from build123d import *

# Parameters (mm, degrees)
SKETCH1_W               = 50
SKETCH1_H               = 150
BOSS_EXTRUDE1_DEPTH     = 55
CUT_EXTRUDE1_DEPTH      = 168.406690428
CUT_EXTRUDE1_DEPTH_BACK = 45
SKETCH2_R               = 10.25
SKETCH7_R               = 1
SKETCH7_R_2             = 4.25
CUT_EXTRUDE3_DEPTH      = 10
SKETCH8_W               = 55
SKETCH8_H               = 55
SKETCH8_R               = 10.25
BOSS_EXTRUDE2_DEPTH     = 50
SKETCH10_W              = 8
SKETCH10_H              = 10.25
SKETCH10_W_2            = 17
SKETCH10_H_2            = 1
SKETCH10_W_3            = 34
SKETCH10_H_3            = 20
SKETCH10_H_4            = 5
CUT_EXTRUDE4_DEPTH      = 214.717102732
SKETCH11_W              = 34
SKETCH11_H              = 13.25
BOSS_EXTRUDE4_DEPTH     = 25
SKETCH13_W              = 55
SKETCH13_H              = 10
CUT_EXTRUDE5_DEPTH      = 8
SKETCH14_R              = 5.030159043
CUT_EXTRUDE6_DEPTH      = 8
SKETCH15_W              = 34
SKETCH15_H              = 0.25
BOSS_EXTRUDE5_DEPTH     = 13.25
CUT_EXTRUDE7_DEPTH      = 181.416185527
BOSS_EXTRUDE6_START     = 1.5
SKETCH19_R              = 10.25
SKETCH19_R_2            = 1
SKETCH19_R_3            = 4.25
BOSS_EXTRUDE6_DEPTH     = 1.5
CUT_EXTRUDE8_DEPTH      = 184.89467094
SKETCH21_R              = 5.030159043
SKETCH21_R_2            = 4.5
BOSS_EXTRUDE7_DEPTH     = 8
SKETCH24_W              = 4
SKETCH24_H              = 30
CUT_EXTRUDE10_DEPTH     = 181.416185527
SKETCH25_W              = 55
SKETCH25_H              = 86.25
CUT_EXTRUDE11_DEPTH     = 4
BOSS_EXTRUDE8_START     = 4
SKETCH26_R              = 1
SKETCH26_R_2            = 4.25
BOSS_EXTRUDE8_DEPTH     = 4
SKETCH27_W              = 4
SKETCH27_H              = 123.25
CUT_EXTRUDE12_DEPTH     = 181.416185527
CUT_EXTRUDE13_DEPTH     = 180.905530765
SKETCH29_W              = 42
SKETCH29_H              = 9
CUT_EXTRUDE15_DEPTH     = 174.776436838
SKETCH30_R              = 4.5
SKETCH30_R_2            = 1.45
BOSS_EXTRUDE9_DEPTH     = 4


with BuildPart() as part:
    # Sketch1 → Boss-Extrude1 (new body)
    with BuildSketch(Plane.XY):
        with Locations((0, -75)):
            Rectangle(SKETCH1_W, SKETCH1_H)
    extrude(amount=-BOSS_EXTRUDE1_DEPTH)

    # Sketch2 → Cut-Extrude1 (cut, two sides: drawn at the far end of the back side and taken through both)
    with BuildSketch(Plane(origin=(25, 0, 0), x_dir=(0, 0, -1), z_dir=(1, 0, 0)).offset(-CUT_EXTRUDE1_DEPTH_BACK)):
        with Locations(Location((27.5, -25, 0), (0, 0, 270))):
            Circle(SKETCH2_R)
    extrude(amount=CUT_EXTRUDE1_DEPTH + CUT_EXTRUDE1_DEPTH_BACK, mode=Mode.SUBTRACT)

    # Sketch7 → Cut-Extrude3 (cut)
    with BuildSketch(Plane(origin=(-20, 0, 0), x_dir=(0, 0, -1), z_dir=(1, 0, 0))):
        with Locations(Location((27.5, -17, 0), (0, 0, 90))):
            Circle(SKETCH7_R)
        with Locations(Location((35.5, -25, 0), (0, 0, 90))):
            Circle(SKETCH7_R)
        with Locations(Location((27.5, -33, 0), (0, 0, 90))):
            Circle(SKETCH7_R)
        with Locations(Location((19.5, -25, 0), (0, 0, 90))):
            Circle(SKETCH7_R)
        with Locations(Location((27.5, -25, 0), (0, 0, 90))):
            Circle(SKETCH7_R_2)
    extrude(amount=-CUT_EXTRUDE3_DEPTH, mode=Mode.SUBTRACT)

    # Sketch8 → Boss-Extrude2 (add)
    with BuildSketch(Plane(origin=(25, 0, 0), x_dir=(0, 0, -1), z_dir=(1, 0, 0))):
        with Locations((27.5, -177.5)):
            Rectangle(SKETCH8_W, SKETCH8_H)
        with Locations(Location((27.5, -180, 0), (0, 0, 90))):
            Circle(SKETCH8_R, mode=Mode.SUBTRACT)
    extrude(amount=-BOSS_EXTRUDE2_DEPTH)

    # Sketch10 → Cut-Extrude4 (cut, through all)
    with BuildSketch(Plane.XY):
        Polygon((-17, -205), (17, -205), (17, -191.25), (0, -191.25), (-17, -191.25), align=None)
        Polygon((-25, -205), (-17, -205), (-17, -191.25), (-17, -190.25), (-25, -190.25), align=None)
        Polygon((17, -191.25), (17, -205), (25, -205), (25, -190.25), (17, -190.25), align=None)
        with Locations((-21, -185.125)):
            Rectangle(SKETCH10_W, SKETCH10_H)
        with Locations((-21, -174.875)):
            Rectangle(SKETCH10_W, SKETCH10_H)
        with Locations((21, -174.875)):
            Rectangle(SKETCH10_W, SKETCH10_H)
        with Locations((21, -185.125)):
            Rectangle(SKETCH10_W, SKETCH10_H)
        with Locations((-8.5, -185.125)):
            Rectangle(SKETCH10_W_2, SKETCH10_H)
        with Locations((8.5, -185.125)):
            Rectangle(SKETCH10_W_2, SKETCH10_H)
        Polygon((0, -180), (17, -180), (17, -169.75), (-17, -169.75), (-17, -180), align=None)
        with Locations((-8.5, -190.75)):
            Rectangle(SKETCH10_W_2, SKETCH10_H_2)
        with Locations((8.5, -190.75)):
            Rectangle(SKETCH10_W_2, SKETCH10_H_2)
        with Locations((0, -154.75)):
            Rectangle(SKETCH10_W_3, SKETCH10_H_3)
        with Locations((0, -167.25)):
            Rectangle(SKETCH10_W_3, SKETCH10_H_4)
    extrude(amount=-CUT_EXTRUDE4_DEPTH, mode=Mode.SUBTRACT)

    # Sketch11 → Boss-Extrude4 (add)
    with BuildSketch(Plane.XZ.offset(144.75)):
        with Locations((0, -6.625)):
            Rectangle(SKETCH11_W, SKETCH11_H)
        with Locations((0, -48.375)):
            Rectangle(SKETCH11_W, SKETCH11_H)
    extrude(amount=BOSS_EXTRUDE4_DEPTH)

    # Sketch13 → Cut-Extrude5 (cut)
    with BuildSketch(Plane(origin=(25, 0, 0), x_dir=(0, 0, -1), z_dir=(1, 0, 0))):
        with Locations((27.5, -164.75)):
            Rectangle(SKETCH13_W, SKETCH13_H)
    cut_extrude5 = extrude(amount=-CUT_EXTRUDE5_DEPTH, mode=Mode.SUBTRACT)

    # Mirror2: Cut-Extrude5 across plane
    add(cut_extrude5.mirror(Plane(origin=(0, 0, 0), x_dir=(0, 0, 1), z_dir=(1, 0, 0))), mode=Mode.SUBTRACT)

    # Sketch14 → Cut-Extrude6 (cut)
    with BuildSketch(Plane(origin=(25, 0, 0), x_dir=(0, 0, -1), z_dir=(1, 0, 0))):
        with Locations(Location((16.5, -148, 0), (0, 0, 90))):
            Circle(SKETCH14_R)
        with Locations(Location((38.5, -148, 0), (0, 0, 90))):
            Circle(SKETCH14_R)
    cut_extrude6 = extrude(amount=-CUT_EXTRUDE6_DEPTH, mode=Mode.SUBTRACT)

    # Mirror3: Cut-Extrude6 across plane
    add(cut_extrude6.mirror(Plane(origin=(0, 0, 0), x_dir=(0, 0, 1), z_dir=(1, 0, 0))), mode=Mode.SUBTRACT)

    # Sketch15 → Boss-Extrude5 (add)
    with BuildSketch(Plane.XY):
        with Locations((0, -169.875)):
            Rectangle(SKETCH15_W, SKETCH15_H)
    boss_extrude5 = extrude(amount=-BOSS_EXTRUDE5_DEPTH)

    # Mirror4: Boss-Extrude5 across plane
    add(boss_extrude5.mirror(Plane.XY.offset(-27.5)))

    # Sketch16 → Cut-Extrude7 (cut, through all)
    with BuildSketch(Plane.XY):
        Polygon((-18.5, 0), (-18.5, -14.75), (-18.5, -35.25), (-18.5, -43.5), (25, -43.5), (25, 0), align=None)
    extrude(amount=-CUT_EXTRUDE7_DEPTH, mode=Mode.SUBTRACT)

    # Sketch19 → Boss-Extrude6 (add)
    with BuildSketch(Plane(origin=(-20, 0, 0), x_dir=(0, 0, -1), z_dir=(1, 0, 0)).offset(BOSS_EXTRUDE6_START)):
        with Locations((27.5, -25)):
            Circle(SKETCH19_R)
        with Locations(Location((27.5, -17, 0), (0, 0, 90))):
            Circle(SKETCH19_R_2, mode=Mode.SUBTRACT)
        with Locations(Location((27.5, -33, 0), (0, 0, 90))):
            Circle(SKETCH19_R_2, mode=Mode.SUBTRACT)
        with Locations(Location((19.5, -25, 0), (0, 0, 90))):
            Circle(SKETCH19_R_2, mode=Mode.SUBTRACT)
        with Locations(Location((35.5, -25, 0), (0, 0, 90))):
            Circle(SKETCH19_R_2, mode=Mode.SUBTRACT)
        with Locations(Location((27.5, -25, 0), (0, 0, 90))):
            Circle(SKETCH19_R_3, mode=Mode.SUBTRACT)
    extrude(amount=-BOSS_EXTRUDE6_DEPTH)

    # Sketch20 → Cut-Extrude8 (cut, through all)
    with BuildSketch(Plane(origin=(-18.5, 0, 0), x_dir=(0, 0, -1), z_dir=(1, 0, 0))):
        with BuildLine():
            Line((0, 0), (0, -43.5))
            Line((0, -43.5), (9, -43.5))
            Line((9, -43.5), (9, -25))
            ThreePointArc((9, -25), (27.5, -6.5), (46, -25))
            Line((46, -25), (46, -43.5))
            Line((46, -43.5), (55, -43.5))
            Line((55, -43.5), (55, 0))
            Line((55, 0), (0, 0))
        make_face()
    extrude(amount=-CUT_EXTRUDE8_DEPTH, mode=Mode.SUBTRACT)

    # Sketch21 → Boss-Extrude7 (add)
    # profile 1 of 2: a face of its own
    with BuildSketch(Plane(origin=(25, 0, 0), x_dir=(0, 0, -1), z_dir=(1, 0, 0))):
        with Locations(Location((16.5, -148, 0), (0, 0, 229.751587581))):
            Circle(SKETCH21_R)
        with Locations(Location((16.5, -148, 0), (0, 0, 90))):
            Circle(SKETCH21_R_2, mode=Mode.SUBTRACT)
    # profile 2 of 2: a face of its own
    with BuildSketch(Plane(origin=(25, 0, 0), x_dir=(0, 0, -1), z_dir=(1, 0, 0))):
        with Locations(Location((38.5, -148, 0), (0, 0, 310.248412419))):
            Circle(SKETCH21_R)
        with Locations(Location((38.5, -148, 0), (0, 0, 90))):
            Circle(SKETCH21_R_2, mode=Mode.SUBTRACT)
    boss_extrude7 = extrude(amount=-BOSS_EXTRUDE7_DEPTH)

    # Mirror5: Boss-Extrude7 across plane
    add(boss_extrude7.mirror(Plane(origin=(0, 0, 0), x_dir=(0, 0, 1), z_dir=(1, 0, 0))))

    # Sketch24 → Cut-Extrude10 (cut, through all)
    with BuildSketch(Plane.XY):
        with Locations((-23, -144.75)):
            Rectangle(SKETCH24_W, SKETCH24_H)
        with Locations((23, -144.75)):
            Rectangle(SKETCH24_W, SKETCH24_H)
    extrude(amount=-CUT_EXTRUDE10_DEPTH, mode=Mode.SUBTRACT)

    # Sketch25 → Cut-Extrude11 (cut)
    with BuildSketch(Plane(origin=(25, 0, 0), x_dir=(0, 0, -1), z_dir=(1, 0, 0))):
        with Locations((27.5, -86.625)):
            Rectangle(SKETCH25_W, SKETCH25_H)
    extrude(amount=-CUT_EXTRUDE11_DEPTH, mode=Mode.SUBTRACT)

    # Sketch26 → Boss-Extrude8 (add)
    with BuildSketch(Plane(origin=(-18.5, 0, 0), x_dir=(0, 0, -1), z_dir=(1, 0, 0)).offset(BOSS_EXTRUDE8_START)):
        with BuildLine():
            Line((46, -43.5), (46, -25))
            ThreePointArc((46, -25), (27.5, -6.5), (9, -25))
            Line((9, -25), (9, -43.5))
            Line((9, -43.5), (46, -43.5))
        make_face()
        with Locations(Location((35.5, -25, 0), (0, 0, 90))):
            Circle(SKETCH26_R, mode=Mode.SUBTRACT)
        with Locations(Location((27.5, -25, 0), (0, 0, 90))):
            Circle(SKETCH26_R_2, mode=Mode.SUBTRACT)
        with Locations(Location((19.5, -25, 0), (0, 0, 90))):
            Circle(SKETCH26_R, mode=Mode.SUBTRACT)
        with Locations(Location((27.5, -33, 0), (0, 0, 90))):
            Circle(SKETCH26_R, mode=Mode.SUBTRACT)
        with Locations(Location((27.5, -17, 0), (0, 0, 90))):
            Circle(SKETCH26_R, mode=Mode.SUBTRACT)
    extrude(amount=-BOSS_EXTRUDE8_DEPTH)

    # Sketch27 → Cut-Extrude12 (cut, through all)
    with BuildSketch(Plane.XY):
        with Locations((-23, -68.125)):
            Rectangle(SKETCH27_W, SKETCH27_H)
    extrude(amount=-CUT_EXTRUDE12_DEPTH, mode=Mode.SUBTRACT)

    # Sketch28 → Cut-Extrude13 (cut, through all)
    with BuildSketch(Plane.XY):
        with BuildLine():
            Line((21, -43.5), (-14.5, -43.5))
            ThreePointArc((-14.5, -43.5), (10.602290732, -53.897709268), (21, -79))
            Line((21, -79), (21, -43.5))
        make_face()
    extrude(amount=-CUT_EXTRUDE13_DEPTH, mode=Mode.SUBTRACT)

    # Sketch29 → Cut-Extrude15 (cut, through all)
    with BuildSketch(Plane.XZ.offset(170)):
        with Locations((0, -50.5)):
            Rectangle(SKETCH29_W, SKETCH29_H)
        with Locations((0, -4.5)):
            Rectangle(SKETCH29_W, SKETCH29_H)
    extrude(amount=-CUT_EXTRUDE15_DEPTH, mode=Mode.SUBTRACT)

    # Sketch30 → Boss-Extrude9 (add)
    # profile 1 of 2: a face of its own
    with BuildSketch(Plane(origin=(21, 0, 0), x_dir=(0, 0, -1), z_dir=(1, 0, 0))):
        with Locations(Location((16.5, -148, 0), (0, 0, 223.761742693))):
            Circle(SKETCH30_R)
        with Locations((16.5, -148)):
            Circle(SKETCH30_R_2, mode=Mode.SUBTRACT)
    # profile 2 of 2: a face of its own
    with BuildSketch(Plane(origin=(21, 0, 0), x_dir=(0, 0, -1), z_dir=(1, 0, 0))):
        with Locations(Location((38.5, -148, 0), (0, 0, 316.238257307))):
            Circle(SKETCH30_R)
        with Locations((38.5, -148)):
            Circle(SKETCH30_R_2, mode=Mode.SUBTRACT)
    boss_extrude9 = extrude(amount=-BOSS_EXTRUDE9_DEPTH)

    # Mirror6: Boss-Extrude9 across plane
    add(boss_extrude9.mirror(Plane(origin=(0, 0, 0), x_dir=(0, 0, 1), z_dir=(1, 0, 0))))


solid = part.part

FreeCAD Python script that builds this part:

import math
import FreeCAD as App
import Part
import Sketcher
from FreeCAD import Vector
Q = App.Units.Quantity

doc = App.newDocument("Part")
body = doc.addObject("PartDesign::Body", "Body")

# Sketch on XY plane
sketch1 = body.newObject("Sketcher::SketchObject", "Sketch")
sketch1.AttachmentSupport = (doc.getObject("XY_Plane"), [""])
sketch1.MapMode = "FlatFace"
sketch1.addGeometry([
    Part.LineSegment(Vector(-25, 0, 0), Vector(-25, -150, 0)),
    Part.LineSegment(Vector(-25, -150, 0), Vector(25, -150, 0)),
    Part.LineSegment(Vector(25, -150, 0), Vector(25, 0, 0)),
    Part.LineSegment(Vector(25, 0, 0), Vector(-25, 0, 0)),
], False)
sketch1.addConstraint([
    Sketcher.Constraint("Coincident", 0, 2, 1, 1),
    Sketcher.Constraint("Coincident", 1, 2, 2, 1),
    Sketcher.Constraint("Coincident", 2, 2, 3, 1),
    Sketcher.Constraint("Coincident", 3, 2, 0, 1),
    Sketcher.Constraint("Vertical", 0),
    Sketcher.Constraint("Horizontal", 1),
    Sketcher.Constraint("Vertical", 2),
    Sketcher.Constraint("Horizontal", 3),
    Sketcher.Constraint("Symmetric", 2, 2, 3, 2, -1, 1),
    Sketcher.Constraint("DistanceX", 1, 1, 1, 2, Q("50 mm")),
    Sketcher.Constraint("DistanceY", 0, 2, 0, 1, Q("150 mm")),
])
pad1 = body.newObject("PartDesign::Pad", "Pad")
pad1.Profile = sketch1
pad1.Length = 55
pad1.Reversed = True

# Sketch on YZ plane
sketch2 = body.newObject("Sketcher::SketchObject", "Sketch001")
sketch2.AttachmentSupport = (doc.getObject("YZ_Plane"), [""])
sketch2.MapMode = "FlatFace"
sketch2.AttachmentOffset = App.Placement(Vector(0, 0, 25), App.Rotation())
sketch2.addGeometry(Part.Circle(Vector(-25, -28, 0), Vector(0, 0, 1), 10), False)
sketch2.addConstraint([
    Sketcher.Constraint("Diameter", 0, Q("20.5 mm")),
    Sketcher.Constraint("DistanceX", 0, 3, -1, 1, Q("25 mm")),
    Sketcher.Constraint("DistanceY", 0, 3, -1, 1, Q("27.5 mm")),
])
pocket1 = body.newObject("PartDesign::Pocket", "Pocket")
pocket1.Profile = sketch2
pocket1.Type = "TwoLengths"
pocket1.Length = 168.40669
pocket1.Length2 = 45
pocket1.Reversed = True

# Sketch on YZ plane
sketch3 = body.newObject("Sketcher::SketchObject", "Sketch002")
sketch3.AttachmentSupport = (doc.getObject("YZ_Plane"), [""])
sketch3.MapMode = "FlatFace"
sketch3.AttachmentOffset = App.Placement(Vector(0, 0, -20), App.Rotation())
sketch3.addGeometry([
    Part.Circle(Vector(-17, -27.5, 0), Vector(0, 0, 1), 1),  # 0
    Part.Circle(Vector(-25, -35.5, 0), Vector(0, 0, 1), 1),  # 1
    Part.Circle(Vector(-33, -27.5, 0), Vector(0, 0, 1), 1),  # 2
    Part.Circle(Vector(-25, -19.5, 0), Vector(0, 0, 1), 1),  # 3
    Part.Circle(Vector(-25, -27.5, 0), Vector(0, 0, 1), 4.2),  # 4
], False)
sketch3.addConstraint([
    Sketcher.Constraint("Equal", 0, 1),
    Sketcher.Constraint("Equal", 1, 2),
    Sketcher.Constraint("Equal", 2, 3),
    Sketcher.Constraint("Horizontal", 0, 3, 2, 3),
    Sketcher.Constraint("Horizontal", 2, 3, 4, 3),
    Sketcher.Constraint("Vertical", 1, 3, 3, 3),
    Sketcher.Constraint("Vertical", 3, 3, 4, 3),
    Sketcher.Constraint("Diameter", 0, Q("2 mm")),
    Sketcher.Constraint("Diameter", 4, Q("8.5 mm")),
    Sketcher.Constraint("DistanceX", 0, 3, -1, 1, Q("17 mm")),
    Sketcher.Constraint("DistanceX", 1, 3, -1, 1, Q("25 mm")),
    Sketcher.Constraint("DistanceX", 2, 3, -1, 1, Q("33 mm")),
    Sketcher.Constraint("DistanceY", 1, 3, 0, 3, Q("8 mm")),
    Sketcher.Constraint("DistanceY", 0, 3, 3, 3, Q("8 mm")),
    Sketcher.Constraint("DistanceY", 0, 3, -1, 1, Q("27.5 mm")),
])
pocket2 = body.newObject("PartDesign::Pocket", "Pocket001")
pocket2.Profile = sketch3
pocket2.Length = 10

# Sketch on YZ plane
sketch4 = body.newObject("Sketcher::SketchObject", "Sketch003")
sketch4.AttachmentSupport = (doc.getObject("YZ_Plane"), [""])
sketch4.MapMode = "FlatFace"
sketch4.AttachmentOffset = App.Placement(Vector(0, 0, 25), App.Rotation())
sketch4.addGeometry([
    Part.LineSegment(Vector(-150, 0, 0), Vector(-205, 0, 0)),  # 0
    Part.LineSegment(Vector(-205, 0, 0), Vector(-205, -55, 0)),  # 1
    Part.LineSegment(Vector(-205, -55, 0), Vector(-150, -55, 0)),  # 2
    Part.LineSegment(Vector(-150, -55, 0), Vector(-150, 0, 0)),  # 3
    Part.Circle(Vector(-180, -28, 0), Vector(0, 0, 1), 10),  # 4
], False)
sketch4.addConstraint([
    Sketcher.Constraint("Coincident", 0, 2, 1, 1),
    Sketcher.Constraint("Coincident", 1, 2, 2, 1),
    Sketcher.Constraint("Coincident", 2, 2, 3, 1),
    Sketcher.Constraint("Coincident", 3, 2, 0, 1),
    Sketcher.Constraint("Horizontal", 0),
    Sketcher.Constraint("Vertical", 1),
    Sketcher.Constraint("Horizontal", 2),
    Sketcher.Constraint("Vertical", 3),
    Sketcher.Constraint("PointOnObject", 0, 2, -1),
    Sketcher.Constraint("Equal", 2, 1),
    Sketcher.Constraint("Diameter", 4, Q("20.5 mm")),
    Sketcher.Constraint("DistanceX", 0, 2, 0, 1, Q("55 mm")),
    Sketcher.Constraint("DistanceX", 4, 3, -1, 1, Q("180 mm")),
    Sketcher.Constraint("DistanceX", 0, 2, -1, 1, Q("205 mm")),
    Sketcher.Constraint("DistanceY", 4, 3, -1, 1, Q("27.5 mm")),
])
pad2 = body.newObject("PartDesign::Pad", "Pad001")
pad2.Profile = sketch4
pad2.Length = 50
pad2.Reversed = True

# Sketch on XY plane
sketch5 = body.newObject("Sketcher::SketchObject", "Sketch004")
sketch5.AttachmentSupport = (doc.getObject("XY_Plane"), [""])
sketch5.MapMode = "FlatFace"
sketch5.addGeometry([
    Part.LineSegment(Vector(-25, -170, 0), Vector(-25, -205, 0)),  # 0
    Part.LineSegment(Vector(-25, -205, 0), Vector(25, -205, 0)),  # 1
    Part.LineSegment(Vector(25, -205, 0), Vector(25, -170, 0)),  # 2
    Part.LineSegment(Vector(25, -170, 0), Vector(17, -170, 0)),  # 3
    Part.LineSegment(Vector(17, -170, 0), Vector(17, -145, 0)),  # 4
    Part.LineSegment(Vector(17, -145, 0), Vector(-17, -145, 0)),  # 5
    Part.LineSegment(Vector(-17, -145, 0), Vector(-17, -170, 0)),  # 6
    Part.LineSegment(Vector(-17, -170, 0), Vector(-25, -170, 0)),  # 7
], False)
sketch5.addConstraint([
    Sketcher.Constraint("Coincident", 0, 2, 1, 1),
    Sketcher.Constraint("Coincident", 1, 2, 2, 1),
    Sketcher.Constraint("Coincident", 2, 2, 3, 1),
    Sketcher.Constraint("Coincident", 3, 2, 4, 1),
    Sketcher.Constraint("Coincident", 4, 2, 5, 1),
    Sketcher.Constraint("Coincident", 5, 2, 6, 1),
    Sketcher.Constraint("Coincident", 6, 2, 7, 1),
    Sketcher.Constraint("Coincident", 7, 2, 0, 1),
    Sketcher.Constraint("Vertical", 0),
    Sketcher.Constraint("Horizontal", 1),
    Sketcher.Constraint("Vertical", 2),
    Sketcher.Constraint("Horizontal", 3),
    Sketcher.Constraint("Vertical", 4),
    Sketcher.Constraint("Horizontal", 5),
    Sketcher.Constraint("Vertical", 6),
    Sketcher.Constraint("Horizontal", 7),
    Sketcher.Constraint("Symmetric", 3, 2, 6, 2, -2),
    Sketcher.Constraint("Equal", 3, 7),
    Sketcher.Constraint("DistanceX", 1, 1, 1, 2, Q("50 mm")),
    Sketcher.Constraint("DistanceX", 3, 2, 3, 1, Q("8 mm")),
    Sketcher.Constraint("DistanceY", 4, 1, 4, 2, Q("25 mm")),
    Sketcher.Constraint("DistanceY", 0, 2, -1, 1, Q("205 mm")),
    Sketcher.Constraint("DistanceY", 0, 2, 0, 1, Q("35.25 mm")),
])
pocket3 = body.newObject("PartDesign::Pocket", "Pocket002")
pocket3.Profile = sketch5
pocket3.Type = "ThroughAll"

# Sketch on XZ plane
sketch6 = body.newObject("Sketcher::SketchObject", "Sketch005")
sketch6.AttachmentSupport = (doc.getObject("XZ_Plane"), [""])
sketch6.MapMode = "FlatFace"
sketch6.AttachmentOffset = App.Placement(Vector(0, 0, 144.75), App.Rotation())
sketch6.addGeometry([
    Part.LineSegment(Vector(-17, 0, 0), Vector(-17, -13, 0)),  # 0
    Part.LineSegment(Vector(-17, -13, 0), Vector(17, -13, 0)),  # 1
    Part.LineSegment(Vector(17, -13, 0), Vector(17, 0, 0)),  # 2
    Part.LineSegment(Vector(17, 0, 0), Vector(-17, 0, 0)),  # 3
    Part.LineSegment(Vector(-17, -42, 0), Vector(-17, -55, 0)),  # 4
    Part.LineSegment(Vector(-17, -55, 0), Vector(17, -55, 0)),  # 5
    Part.LineSegment(Vector(17, -55, 0), Vector(17, -42, 0)),  # 6
    Part.LineSegment(Vector(17, -42, 0), Vector(-17, -42, 0)),  # 7
], False)
sketch6.addConstraint([
    Sketcher.Constraint("Coincident", 0, 2, 1, 1),
    Sketcher.Constraint("Coincident", 1, 2, 2, 1),
    Sketcher.Constraint("Coincident", 2, 2, 3, 1),
    Sketcher.Constraint("Coincident", 3, 2, 0, 1),
    Sketcher.Constraint("Coincident", 4, 2, 5, 1),
    Sketcher.Constraint("Coincident", 5, 2, 6, 1),
    Sketcher.Constraint("Coincident", 6, 2, 7, 1),
    Sketcher.Constraint("Coincident", 7, 2, 4, 1),
    Sketcher.Constraint("Vertical", 0),
    Sketcher.Constraint("Horizontal", 1),
    Sketcher.Constraint("Vertical", 2),
    Sketcher.Constraint("Horizontal", 3),
    Sketcher.Constraint("Vertical", 4),
    Sketcher.Constraint("Horizontal", 5),
    Sketcher.Constraint("Vertical", 6),
    Sketcher.Constraint("Horizontal", 7),
    Sketcher.Constraint("Symmetric", 2, 2, 3, 2, -1, 1),
    Sketcher.Constraint("Vertical", 3, 2, 4, 2),
    Sketcher.Constraint("Vertical", 2, 2, 5, 2),
    Sketcher.Constraint("Equal", 2, 4),
    Sketcher.Constraint("DistanceX", 1, 1, 1, 2, Q("34 mm")),
    Sketcher.Constraint("DistanceY", 4, 2, -1, 1, Q("55 mm")),
    Sketcher.Constraint("DistanceY", 0, 2, 0, 1, Q("13.25 mm")),
])
pad3 = body.newObject("PartDesign::Pad", "Pad002")
pad3.Profile = sketch6
pad3.Length = 25

# Sketch on YZ plane
sketch7 = body.newObject("Sketcher::SketchObject", "Sketch006")
sketch7.AttachmentSupport = (doc.getObject("YZ_Plane"), [""])
sketch7.MapMode = "FlatFace"
sketch7.AttachmentOffset = App.Placement(Vector(0, 0, 25), App.Rotation())
sketch7.addGeometry([
    Part.LineSegment(Vector(-160, 0, 0), Vector(-170, 0, 0)),
    Part.LineSegment(Vector(-170, 0, 0), Vector(-170, -55, 0)),
    Part.LineSegment(Vector(-170, -55, 0), Vector(-160, -55, 0)),
    Part.LineSegment(Vector(-160, -55, 0), Vector(-160, 0, 0)),
], False)
sketch7.addConstraint([
    Sketcher.Constraint("Coincident", 0, 2, 1, 1),
    Sketcher.Constraint("Coincident", 1, 2, 2, 1),
    Sketcher.Constraint("Coincident", 2, 2, 3, 1),
    Sketcher.Constraint("Coincident", 3, 2, 0, 1),
    Sketcher.Constraint("Horizontal", 0),
    Sketcher.Constraint("Vertical", 1),
    Sketcher.Constraint("Horizontal", 2),
    Sketcher.Constraint("Vertical", 3),
    Sketcher.Constraint("PointOnObject", 0, 2, -1),
    Sketcher.Constraint("DistanceX", 0, 2, 0, 1, Q("10 mm")),
    Sketcher.Constraint("DistanceY", 1, 2, 1, 1, Q("55 mm")),
    Sketcher.Constraint("DistanceX", 0, 2, -1, 1, Q("169.75 mm")),
])
pocket4 = body.newObject("PartDesign::Pocket", "Pocket003")
pocket4.Profile = sketch7
pocket4.Length = 8
doc.recompute()

mirrored = body.newObject("PartDesign::Mirrored", "Mirrored")
mirrored.Originals = [pocket4]
mirrored.MirrorPlane = (doc.getObject("YZ_Plane"), [""])
body.Tip = mirrored

# Sketch on YZ plane
sketch8 = body.newObject("Sketcher::SketchObject", "Sketch007")
sketch8.AttachmentSupport = (doc.getObject("YZ_Plane"), [""])
sketch8.MapMode = "FlatFace"
sketch8.AttachmentOffset = App.Placement(Vector(0, 0, 25), App.Rotation())
sketch8.addGeometry([
    Part.Circle(Vector(-148, -16, 0), Vector(0, 0, 1), 5),
    Part.Circle(Vector(-148, -38, 0), Vector(0, 0, 1), 5),
], False)
sketch8.addConstraint([
    Sketcher.Constraint("Equal", 0, 1),
    Sketcher.Constraint("Vertical", 0, 3, 1, 3),
    Sketcher.Constraint("DistanceX", 0, 3, -1, 1, Q("148 mm")),
    Sketcher.Constraint("DistanceY", 1, 3, 0, 3, Q("22 mm")),
    Sketcher.Constraint("DistanceY", 0, 3, -1, 1, Q("16.5 mm")),
    Sketcher.Constraint("Diameter", 0, Q("10.060318 mm")),
])
pocket5 = body.newObject("PartDesign::Pocket", "Pocket004")
pocket5.Profile = sketch8
pocket5.Length = 8
doc.recompute()

mirrored2 = body.newObject("PartDesign::Mirrored", "Mirrored001")
mirrored2.Originals = [pocket5]
mirrored2.MirrorPlane = (doc.getObject("YZ_Plane"), [""])
body.Tip = mirrored2

# Sketch on XY plane
sketch9 = body.newObject("Sketcher::SketchObject", "Sketch008")
sketch9.AttachmentSupport = (doc.getObject("XY_Plane"), [""])
sketch9.MapMode = "FlatFace"
sketch9.addGeometry([
    Part.LineSegment(Vector(-17, -169.75, 0), Vector(-17, -170, 0)),
    Part.LineSegment(Vector(-17, -170, 0), Vector(17, -170, 0)),
    Part.LineSegment(Vector(17, -170, 0), Vector(17, -169.75, 0)),
    Part.LineSegment(Vector(17, -169.75, 0), Vector(-17, -169.75, 0)),
], False)
sketch9.addConstraint([
    Sketcher.Constraint("Coincident", 0, 2, 1, 1),
    Sketcher.Constraint("Coincident", 1, 2, 2, 1),
    Sketcher.Constraint("Coincident", 2, 2, 3, 1),
    Sketcher.Constraint("Coincident", 3, 2, 0, 1),
    Sketcher.Constraint("Vertical", 0),
    Sketcher.Constraint("Horizontal", 1),
    Sketcher.Constraint("Vertical", 2),
    Sketcher.Constraint("Horizontal", 3),
    Sketcher.Constraint("DistanceX", 1, 1, 1, 2, Q("34 mm")),
    Sketcher.Constraint("DistanceX", 0, 2, -1, 1, Q("17 mm")),
    Sketcher.Constraint("DistanceY", 0, 2, -1, 1, Q("170 mm")),
    Sketcher.Constraint("DistanceY", 0, 2, 0, 1, Q("0.25 mm")),
])
pad4 = body.newObject("PartDesign::Pad", "Pad003")
pad4.Profile = sketch9
pad4.Length = 13.25
pad4.Reversed = True
doc.recompute()

datumplane = body.newObject("PartDesign::Plane", "DatumPlane")
datumplane.AttachmentSupport = (doc.getObject("XY_Plane"), [""])
datumplane.MapMode = "FlatFace"
datumplane.AttachmentOffset = App.Placement(Vector(0, 0, -27.5), App.Rotation())
mirrored3 = body.newObject("PartDesign::Mirrored", "Mirrored002")
mirrored3.Originals = [pad4]
mirrored3.MirrorPlane = (datumplane, [""])
body.Tip = mirrored3

# Sketch on XY plane
sketch10 = body.newObject("Sketcher::SketchObject", "Sketch009")
sketch10.AttachmentSupport = (doc.getObject("XY_Plane"), [""])
sketch10.MapMode = "FlatFace"
sketch10.addGeometry([
    Part.LineSegment(Vector(-18, 0, 0), Vector(-18, -44, 0)),
    Part.LineSegment(Vector(-18, -44, 0), Vector(25, -44, 0)),
    Part.LineSegment(Vector(25, -44, 0), Vector(25, 0, 0)),
    Part.LineSegment(Vector(25, 0, 0), Vector(-18, 0, 0)),
], False)
sketch10.addConstraint([
    Sketcher.Constraint("Coincident", 0, 2, 1, 1),
    Sketcher.Constraint("Coincident", 1, 2, 2, 1),
    Sketcher.Constraint("Coincident", 2, 2, 3, 1),
    Sketcher.Constraint("Coincident", 3, 2, 0, 1),
    Sketcher.Constraint("Vertical", 0),
    Sketcher.Constraint("Horizontal", 1),
    Sketcher.Constraint("Vertical", 2),
    Sketcher.Constraint("Horizontal", 3),
    Sketcher.Constraint("PointOnObject", 2, 2, -1),
    Sketcher.Constraint("Equal", 3, 0),
    Sketcher.Constraint("DistanceX", 1, 1, 1, 2, Q("43.5 mm")),
    Sketcher.Constraint("DistanceX", -1, 1, 1, 2, Q("25 mm")),
])
pocket6 = body.newObject("PartDesign::Pocket", "Pocket005")
pocket6.Profile = sketch10
pocket6.Type = "ThroughAll"

# Sketch on YZ plane
sketch11 = body.newObject("Sketcher::SketchObject", "Sketch010")
sketch11.AttachmentSupport = (doc.getObject("YZ_Plane"), [""])
sketch11.MapMode = "FlatFace"
sketch11.AttachmentOffset = App.Placement(Vector(0, 0, -18.5), App.Rotation())
sketch11.addGeometry([
    Part.Circle(Vector(-25, -27.5, 0), Vector(0, 0, 1), 10.2),  # 0
    Part.Circle(Vector(-33, -27.5, 0), Vector(0, 0, 1), 1),  # 1
    Part.Circle(Vector(-25, -19.5, 0), Vector(0, 0, 1), 1),  # 2
    Part.Circle(Vector(-25, -27.5, 0), Vector(0, 0, 1), 4.2),  # 3
    Part.Circle(Vector(-25, -35.5, 0), Vector(0, 0, 1), 1),  # 4
    Part.Circle(Vector(-17, -27.5, 0), Vector(0, 0, 1), 1),  # 5
], False)
sketch11.addConstraint([
    Sketcher.Constraint("Coincident", 3, 3, 0, 3),
    Sketcher.Constraint("Equal", 1, 2),
    Sketcher.Constraint("Equal", 2, 4),
    Sketcher.Constraint("Equal", 4, 5),
    Sketcher.Constraint("Horizontal", 0, 3, 1, 3),
    Sketcher.Constraint("Horizontal", 3, 3, 5, 3),
    Sketcher.Constraint("Vertical", 0, 3, 2, 3),
    Sketcher.Constraint("Vertical", 3, 3, 4, 3),
    Sketcher.Constraint("Diameter", 1, Q("2 mm")),
    Sketcher.Constraint("Diameter", 0, Q("20.5 mm")),
    Sketcher.Constraint("Diameter", 3, Q("8.5 mm")),
    Sketcher.Constraint("DistanceX", 0, 3, -1, 1, Q("25 mm")),
    Sketcher.Constraint("DistanceX", 1, 3, -1, 1, Q("33 mm")),
    Sketcher.Constraint("DistanceX", 5, 3, -1, 1, Q("17 mm")),
    Sketcher.Constraint("DistanceY", 0, 3, 2, 3, Q("8 mm")),
    Sketcher.Constraint("DistanceY", 4, 3, 0, 3, Q("8 mm")),
    Sketcher.Constraint("DistanceY", 0, 3, -1, 1, Q("27.5 mm")),
])
pad5 = body.newObject("PartDesign::Pad", "Pad004")
pad5.Profile = sketch11
pad5.Length = 1.5
pad5.Reversed = True

# Sketch on YZ plane
sketch12 = body.newObject("Sketcher::SketchObject", "Sketch011")
sketch12.AttachmentSupport = (doc.getObject("YZ_Plane"), [""])
sketch12.MapMode = "FlatFace"
sketch12.AttachmentOffset = App.Placement(Vector(0, 0, -18.5), App.Rotation())
sketch12.addGeometry([
    Part.LineSegment(Vector(0, 0, 0), Vector(-44, 0, 0)),  # 0
    Part.LineSegment(Vector(-44, 0, 0), Vector(-44, -9, 0)),  # 1
    Part.LineSegment(Vector(-44, -9, 0), Vector(-25, -9, 0)),  # 2
    Part.ArcOfCircle(Part.Circle(Vector(-25, -28, 0), Vector(0, 0, 1), 18), math.radians(-90), math.radians(90)),  # 3
    Part.LineSegment(Vector(-25, -46, 0), Vector(-44, -46, 0)),  # 4
    Part.LineSegment(Vector(-44, -46, 0), Vector(-44, -55, 0)),  # 5
    Part.LineSegment(Vector(-44, -55, 0), Vector(0, -55, 0)),  # 6
    Part.LineSegment(Vector(0, -55, 0), Vector(0, 0, 0)),  # 7
], False)
sketch12.addConstraint([
    Sketcher.Constraint("Coincident", 0, 2, 1, 1),
    Sketcher.Constraint("Coincident", 1, 2, 2, 1),
    Sketcher.Constraint("Tangent", 2, 2, 3, 2),
    Sketcher.Constraint("Tangent", 3, 1, 4, 1),
    Sketcher.Constraint("Coincident", 4, 2, 5, 1),
    Sketcher.Constraint("Coincident", 5, 2, 6, 1),
    Sketcher.Constraint("Coincident", 6, 2, 7, 1),
    Sketcher.Constraint("Coincident", 7, 2, 0, 1),
    Sketcher.Constraint("Horizontal", 0),
    Sketcher.Constraint("Vertical", 1),
    Sketcher.Constraint("Horizontal", 2),
    Sketcher.Constraint("Horizontal", 4),
    Sketcher.Constraint("Vertical", 5),
    Sketcher.Constraint("Horizontal", 6),
    Sketcher.Constraint("Vertical", 7),
    Sketcher.Constraint("Coincident", 7, 2, -1, 1),
    Sketcher.Constraint("Vertical", 1, 2, 4, 2),
    Sketcher.Constraint("Equal", 1, 5),
    Sketcher.Constraint("Radius", 3, Q("18.5 mm")),
    Sketcher.Constraint("DistanceY", 1, 2, 1, 1, Q("9 mm")),
    Sketcher.Constraint("DistanceX", 0, 2, 0, 1, Q("43.5 mm")),
    Sketcher.Constraint("DistanceX", 2, 1, 2, 2, Q("18.5 mm")),
])
pocket7 = body.newObject("PartDesign::Pocket", "Pocket006")
pocket7.Profile = sketch12
pocket7.Type = "ThroughAll"

# Sketch on YZ plane
sketch13 = body.newObject("Sketcher::SketchObject", "Sketch012")
sketch13.AttachmentSupport = (doc.getObject("YZ_Plane"), [""])
sketch13.MapMode = "FlatFace"
sketch13.AttachmentOffset = App.Placement(Vector(0, 0, 25), App.Rotation())
sketch13.addGeometry([
    Part.Circle(Vector(-148, -16.5, 0), Vector(0, 0, 1), 5),
    Part.Circle(Vector(-148, -16.5, 0), Vector(0, 0, 1), 4.5),
    Part.Circle(Vector(-148, -38.5, 0), Vector(0, 0, 1), 5),
    Part.Circle(Vector(-148, -38.5, 0), Vector(0, 0, 1), 4.5),
], False)
sketch13.addConstraint([
    Sketcher.Constraint("Coincident", 1, 3, 0, 3),
    Sketcher.Constraint("Coincident", 3, 3, 2, 3),
    Sketcher.Constraint("Equal", 0, 2),
    Sketcher.Constraint("Equal", 1, 3),
    Sketcher.Constraint("Vertical", 1, 3, 2, 3),
    Sketcher.Constraint("Diameter", 1, Q("9 mm")),
    Sketcher.Constraint("DistanceX", 0, 3, -1, 1, Q("148 mm")),
    Sketcher.Constraint("DistanceY", 2, 3, 0, 3, Q("22 mm")),
    Sketcher.Constraint("DistanceY", 0, 3, -1, 1, Q("16.5 mm")),
    Sketcher.Constraint("Diameter", 0, Q("10.060318 mm")),
])
pad6 = body.newObject("PartDesign::Pad", "Pad005")
pad6.Profile = sketch13
pad6.Length = 8
pad6.Reversed = True
doc.recompute()

mirrored4 = body.newObject("PartDesign::Mirrored", "Mirrored003")
mirrored4.Originals = [pad6]
mirrored4.MirrorPlane = (doc.getObject("YZ_Plane"), [""])
body.Tip = mirrored4

# Sketch on XY plane
sketch14 = body.newObject("Sketcher::SketchObject", "Sketch013")
sketch14.AttachmentSupport = (doc.getObject("XY_Plane"), [""])
sketch14.MapMode = "FlatFace"
sketch14.addGeometry([
    Part.LineSegment(Vector(-25, -129.8, 0), Vector(-25, -159.8, 0)),  # 0
    Part.LineSegment(Vector(-25, -159.8, 0), Vector(-21, -159.8, 0)),  # 1
    Part.LineSegment(Vector(-21, -159.8, 0), Vector(-21, -129.8, 0)),  # 2
    Part.LineSegment(Vector(-21, -129.8, 0), Vector(-25, -129.8, 0)),  # 3
    Part.LineSegment(Vector(21, -129.8, 0), Vector(21, -159.8, 0)),  # 4
    Part.LineSegment(Vector(21, -159.8, 0), Vector(25, -159.8, 0)),  # 5
    Part.LineSegment(Vector(25, -159.8, 0), Vector(25, -129.8, 0)),  # 6
    Part.LineSegment(Vector(25, -129.8, 0), Vector(21, -129.8, 0)),  # 7
], False)
sketch14.addConstraint([
    Sketcher.Constraint("Coincident", 0, 2, 1, 1),
    Sketcher.Constraint("Coincident", 1, 2, 2, 1),
    Sketcher.Constraint("Coincident", 2, 2, 3, 1),
    Sketcher.Constraint("Coincident", 3, 2, 0, 1),
    Sketcher.Constraint("Coincident", 4, 2, 5, 1),
    Sketcher.Constraint("Coincident", 5, 2, 6, 1),
    Sketcher.Constraint("Coincident", 6, 2, 7, 1),
    Sketcher.Constraint("Coincident", 7, 2, 4, 1),
    Sketcher.Constraint("Vertical", 0),
    Sketcher.Constraint("Horizontal", 1),
    Sketcher.Constraint("Vertical", 2),
    Sketcher.Constraint("Horizontal", 3),
    Sketcher.Constraint("Vertical", 4),
    Sketcher.Constraint("Horizontal", 5),
    Sketcher.Constraint("Vertical", 6),
    Sketcher.Constraint("Horizontal", 7),
    Sketcher.Constraint("Symmetric", 1, 2, 4, 2, -2),
    Sketcher.Constraint("Symmetric", 3, 2, 6, 2, -2),
    Sketcher.Constraint("DistanceX", 1, 1, 1, 2, Q("4 mm")),
    Sketcher.Constraint("DistanceY", 0, 2, 0, 1, Q("30 mm")),
    Sketcher.Constraint("DistanceX", 0, 2, -1, 1, Q("25 mm")),
    Sketcher.Constraint("DistanceY", 0, 2, -1, 1, Q("159.75 mm")),
])
pocket8 = body.newObject("PartDesign::Pocket", "Pocket007")
pocket8.Profile = sketch14
pocket8.Type = "ThroughAll"

# Sketch on YZ plane
sketch15 = body.newObject("Sketcher::SketchObject", "Sketch014")
sketch15.AttachmentSupport = (doc.getObject("YZ_Plane"), [""])
sketch15.MapMode = "FlatFace"
sketch15.AttachmentOffset = App.Placement(Vector(0, 0, 25), App.Rotation())
sketch15.addGeometry([
    Part.LineSegment(Vector(-44, 0, 0), Vector(-130, 0, 0)),
    Part.LineSegment(Vector(-130, 0, 0), Vector(-130, -55, 0)),
    Part.LineSegment(Vector(-130, -55, 0), Vector(-44, -55, 0)),
    Part.LineSegment(Vector(-44, -55, 0), Vector(-44, 0, 0)),
], False)
sketch15.addConstraint([
    Sketcher.Constraint("Coincident", 0, 2, 1, 1),
    Sketcher.Constraint("Coincident", 1, 2, 2, 1),
    Sketcher.Constraint("Coincident", 2, 2, 3, 1),
    Sketcher.Constraint("Coincident", 3, 2, 0, 1),
    Sketcher.Constraint("Horizontal", 0),
    Sketcher.Constraint("Vertical", 1),
    Sketcher.Constraint("Horizontal", 2),
    Sketcher.Constraint("Vertical", 3),
    Sketcher.Constraint("PointOnObject", 0, 2, -1),
    Sketcher.Constraint("DistanceY", 1, 2, 1, 1, Q("55 mm")),
    Sketcher.Constraint("DistanceX", 0, 2, 0, 1, Q("86.25 mm")),
    Sketcher.Constraint("DistanceX", 2, 2, -1, 1, Q("43.5 mm")),
])
pocket9 = body.newObject("PartDesign::Pocket", "Pocket008")
pocket9.Profile = sketch15
pocket9.Length = 4

# Sketch on YZ plane
sketch16 = body.newObject("Sketcher::SketchObject", "Sketch015")
sketch16.AttachmentSupport = (doc.getObject("YZ_Plane"), [""])
sketch16.MapMode = "FlatFace"
sketch16.AttachmentOffset = App.Placement(Vector(0, 0, -14.5), App.Rotation())
sketch16.addGeometry([
    Part.LineSegment(Vector(-43.5, -46, 0), Vector(-25, -46, 0)),  # 0
    Part.ArcOfCircle(Part.Circle(Vector(-25, -27.5, 0), Vector(0, 0, 1), 18.5), math.radians(-90), math.radians(90)),  # 1
    Part.LineSegment(Vector(-25, -9, 0), Vector(-43.5, -9, 0)),  # 2
    Part.LineSegment(Vector(-43.5, -9, 0), Vector(-43.5, -46, 0)),  # 3
    Part.Circle(Vector(-33, -27.5, 0), Vector(0, 0, 1), 1),  # 4
    Part.Circle(Vector(-25, -19.5, 0), Vector(0, 0, 1), 1),  # 5
    Part.Circle(Vector(-25, -27.5, 0), Vector(0, 0, 1), 4.2),  # 6
    Part.Circle(Vector(-25, -35.5, 0), Vector(0, 0, 1), 1),  # 7
    Part.Circle(Vector(-17, -27.5, 0), Vector(0, 0, 1), 1),  # 8
], False)
sketch16.addConstraint([
    Sketcher.Constraint("Tangent", 0, 2, 1, 1),
    Sketcher.Constraint("Tangent", 1, 2, 2, 1),
    Sketcher.Constraint("Coincident", 2, 2, 3, 1),
    Sketcher.Constraint("Coincident", 3, 2, 0, 1),
    Sketcher.Constraint("Horizontal", 0),
    Sketcher.Constraint("Horizontal", 2),
    Sketcher.Constraint("Vertical", 3),
    Sketcher.Constraint("Coincident", 6, 3, 1, 3),
    Sketcher.Constraint("Equal", 4, 5),
    Sketcher.Constraint("Equal", 5, 7),
    Sketcher.Constraint("Equal", 7, 8),
    Sketcher.Constraint("Horizontal", 1, 3, 4, 3),
    Sketcher.Constraint("Horizontal", 6, 3, 8, 3),
    Sketcher.Constraint("Vertical", 1, 3, 5, 3),
    Sketcher.Constraint("Vertical", 6, 3, 7, 3),
    Sketcher.Constraint("Diameter", 4, Q("2 mm")),
    Sketcher.Constraint("Diameter", 6, Q("8.5 mm")),
    Sketcher.Constraint("Radius", 1, Q("18.5 mm")),
    Sketcher.Constraint("DistanceX", 0, 1, 0, 2, Q("18.5 mm")),
    Sketcher.Constraint("DistanceX", 1, 3, -1, 1, Q("25 mm")),
    Sketcher.Constraint("DistanceX", 4, 3, -1, 1, Q("33 mm")),
    Sketcher.Constraint("DistanceX", 8, 3, -1, 1, Q("17 mm")),
    Sketcher.Constraint("DistanceY", 0, 2, -1, 1, Q("46 mm")),
    Sketcher.Constraint("DistanceY", 1, 3, 5, 3, Q("8 mm")),
    Sketcher.Constraint("DistanceY", 7, 3, 1, 3, Q("8 mm")),
])
pad7 = body.newObject("PartDesign::Pad", "Pad006")
pad7.Profile = sketch16
pad7.Length = 4
pad7.Reversed = True

# Sketch on XY plane
sketch17 = body.newObject("Sketcher::SketchObject", "Sketch016")
sketch17.AttachmentSupport = (doc.getObject("XY_Plane"), [""])
sketch17.MapMode = "FlatFace"
sketch17.addGeometry([
    Part.LineSegment(Vector(-25, -6.5, 0), Vector(-25, -129.8, 0)),
    Part.LineSegment(Vector(-25, -129.8, 0), Vector(-21, -129.8, 0)),
    Part.LineSegment(Vector(-21, -129.8, 0), Vector(-21, -6.5, 0)),
    Part.LineSegment(Vector(-21, -6.5, 0), Vector(-25, -6.5, 0)),
], False)
sketch17.addConstraint([
    Sketcher.Constraint("Coincident", 0, 2, 1, 1),
    Sketcher.Constraint("Coincident", 1, 2, 2, 1),
    Sketcher.Constraint("Coincident", 2, 2, 3, 1),
    Sketcher.Constraint("Coincident", 3, 2, 0, 1),
    Sketcher.Constraint("Vertical", 0),
    Sketcher.Constraint("Horizontal", 1),
    Sketcher.Constraint("Vertical", 2),
    Sketcher.Constraint("Horizontal", 3),
    Sketcher.Constraint("DistanceX", 1, 1, 1, 2, Q("4 mm")),
    Sketcher.Constraint("DistanceX", 0, 2, -1, 1, Q("25 mm")),
    Sketcher.Constraint("DistanceY", 0, 2, 0, 1, Q("123.25 mm")),
    Sketcher.Constraint("DistanceY", 2, 2, -1, 1, Q("6.5 mm")),
])
pocket10 = body.newObject("PartDesign::Pocket", "Pocket009")
pocket10.Profile = sketch17
pocket10.Type = "ThroughAll"

# Sketch on XY plane
sketch18 = body.newObject("Sketcher::SketchObject", "Sketch017")
sketch18.AttachmentSupport = (doc.getObject("XY_Plane"), [""])
sketch18.MapMode = "FlatFace"
sketch18.addGeometry([
    Part.LineSegment(Vector(21, -44, 0), Vector(-14, -44, 0)),
    Part.ArcOfCircle(Part.Circle(Vector(-14, -79, 0), Vector(0, 0, 1), 36), math.radians(0), math.radians(90)),
    Part.LineSegment(Vector(21, -79, 0), Vector(21, -44, 0)),
], False)
sketch18.addConstraint([
    Sketcher.Constraint("Tangent", 0, 2, 1, 2),
    Sketcher.Constraint("Tangent", 1, 1, 2, 1),
    Sketcher.Constraint("Coincident", 2, 2, 0, 1),
    Sketcher.Constraint("Horizontal", 0),
    Sketcher.Constraint("Vertical", 2),
    Sketcher.Constraint("Radius", 1, Q("35.5 mm")),
    Sketcher.Constraint("DistanceY", 1, 3, -1, 1, Q("79 mm")),
    Sketcher.Constraint("DistanceX", -1, 1, 1, 1, Q("21 mm")),
])
pocket11 = body.newObject("PartDesign::Pocket", "Pocket010")
pocket11.Profile = sketch18
pocket11.Type = "ThroughAll"

# Sketch on XZ plane
sketch19 = body.newObject("Sketcher::SketchObject", "Sketch018")
sketch19.AttachmentSupport = (doc.getObject("XZ_Plane"), [""])
sketch19.MapMode = "FlatFace"
sketch19.AttachmentOffset = App.Placement(Vector(0, 0, 170), App.Rotation())
sketch19.addGeometry([
    Part.LineSegment(Vector(-21, -46, 0), Vector(-21, -55, 0)),  # 0
    Part.LineSegment(Vector(-21, -55, 0), Vector(21, -55, 0)),  # 1
    Part.LineSegment(Vector(21, -55, 0), Vector(21, -46, 0)),  # 2
    Part.LineSegment(Vector(21, -46, 0), Vector(-21, -46, 0)),  # 3
    Part.LineSegment(Vector(-21, 0, 0), Vector(-21, -9, 0)),  # 4
    Part.LineSegment(Vector(-21, -9, 0), Vector(21, -9, 0)),  # 5
    Part.LineSegment(Vector(21, -9, 0), Vector(21, 0, 0)),  # 6
    Part.LineSegment(Vector(21, 0, 0), Vector(-21, 0, 0)),  # 7
], False)
sketch19.addConstraint([
    Sketcher.Constraint("Coincident", 0, 2, 1, 1),
    Sketcher.Constraint("Coincident", 1, 2, 2, 1),
    Sketcher.Constraint("Coincident", 2, 2, 3, 1),
    Sketcher.Constraint("Coincident", 3, 2, 0, 1),
    Sketcher.Constraint("Coincident", 4, 2, 5, 1),
    Sketcher.Constraint("Coincident", 5, 2, 6, 1),
    Sketcher.Constraint("Coincident", 6, 2, 7, 1),
    Sketcher.Constraint("Coincident", 7, 2, 4, 1),
    Sketcher.Constraint("Vertical", 0),
    Sketcher.Constraint("Horizontal", 1),
    Sketcher.Constraint("Vertical", 2),
    Sketcher.Constraint("Horizontal", 3),
    Sketcher.Constraint("Vertical", 4),
    Sketcher.Constraint("Horizontal", 5),
    Sketcher.Constraint("Vertical", 6),
    Sketcher.Constraint("Horizontal", 7),
    Sketcher.Constraint("Symmetric", 6, 2, 7, 2, -1, 1),
    Sketcher.Constraint("Vertical", 3, 2, 4, 2),
    Sketcher.Constraint("Vertical", 2, 2, 5, 2),
    Sketcher.Constraint("Equal", 2, 4),
    Sketcher.Constraint("DistanceX", 1, 1, 1, 2, Q("42 mm")),
    Sketcher.Constraint("DistanceY", 0, 2, 0, 1, Q("9 mm")),
    Sketcher.Constraint("DistanceY", 0, 2, -1, 1, Q("55 mm")),
])
pocket12 = body.newObject("PartDesign::Pocket", "Pocket011")
pocket12.Profile = sketch19
pocket12.Type = "ThroughAll"

# Sketch on YZ plane
sketch20 = body.newObject("Sketcher::SketchObject", "Sketch019")
sketch20.AttachmentSupport = (doc.getObject("YZ_Plane"), [""])
sketch20.MapMode = "FlatFace"
sketch20.AttachmentOffset = App.Placement(Vector(0, 0, 21), App.Rotation())
sketch20.addGeometry([
    Part.Circle(Vector(-148, -16.5, 0), Vector(0, 0, 1), 4.5),
    Part.Circle(Vector(-148, -16.5, 0), Vector(0, 0, 1), 1.4),
    Part.Circle(Vector(-148, -38.5, 0), Vector(0, 0, 1), 4.5),
    Part.Circle(Vector(-148, -38.5, 0), Vector(0, 0, 1), 1.4),
], False)
sketch20.addConstraint([
    Sketcher.Constraint("Coincident", 1, 3, 0, 3),
    Sketcher.Constraint("Coincident", 3, 3, 2, 3),
    Sketcher.Constraint("Equal", 0, 2),
    Sketcher.Constraint("Equal", 1, 3),
    Sketcher.Constraint("Vertical", 1, 3, 2, 3),
    Sketcher.Constraint("Diameter", 0, Q("9 mm")),
    Sketcher.Constraint("Diameter", 1, Q("2.9 mm")),
    Sketcher.Constraint("DistanceX", 0, 3, -1, 1, Q("148 mm")),
    Sketcher.Constraint("DistanceY", 2, 3, 0, 3, Q("22 mm")),
    Sketcher.Constraint("DistanceY", 0, 3, -1, 1, Q("16.5 mm")),
])
pad8 = body.newObject("PartDesign::Pad", "Pad007")
pad8.Profile = sketch20
pad8.Length = 4
pad8.Reversed = True
doc.recompute()

mirrored5 = body.newObject("PartDesign::Mirrored", "Mirrored004")
mirrored5.Originals = [pad8]
mirrored5.MirrorPlane = (doc.getObject("YZ_Plane"), [""])
body.Tip = mirrored5

doc.recompute()
